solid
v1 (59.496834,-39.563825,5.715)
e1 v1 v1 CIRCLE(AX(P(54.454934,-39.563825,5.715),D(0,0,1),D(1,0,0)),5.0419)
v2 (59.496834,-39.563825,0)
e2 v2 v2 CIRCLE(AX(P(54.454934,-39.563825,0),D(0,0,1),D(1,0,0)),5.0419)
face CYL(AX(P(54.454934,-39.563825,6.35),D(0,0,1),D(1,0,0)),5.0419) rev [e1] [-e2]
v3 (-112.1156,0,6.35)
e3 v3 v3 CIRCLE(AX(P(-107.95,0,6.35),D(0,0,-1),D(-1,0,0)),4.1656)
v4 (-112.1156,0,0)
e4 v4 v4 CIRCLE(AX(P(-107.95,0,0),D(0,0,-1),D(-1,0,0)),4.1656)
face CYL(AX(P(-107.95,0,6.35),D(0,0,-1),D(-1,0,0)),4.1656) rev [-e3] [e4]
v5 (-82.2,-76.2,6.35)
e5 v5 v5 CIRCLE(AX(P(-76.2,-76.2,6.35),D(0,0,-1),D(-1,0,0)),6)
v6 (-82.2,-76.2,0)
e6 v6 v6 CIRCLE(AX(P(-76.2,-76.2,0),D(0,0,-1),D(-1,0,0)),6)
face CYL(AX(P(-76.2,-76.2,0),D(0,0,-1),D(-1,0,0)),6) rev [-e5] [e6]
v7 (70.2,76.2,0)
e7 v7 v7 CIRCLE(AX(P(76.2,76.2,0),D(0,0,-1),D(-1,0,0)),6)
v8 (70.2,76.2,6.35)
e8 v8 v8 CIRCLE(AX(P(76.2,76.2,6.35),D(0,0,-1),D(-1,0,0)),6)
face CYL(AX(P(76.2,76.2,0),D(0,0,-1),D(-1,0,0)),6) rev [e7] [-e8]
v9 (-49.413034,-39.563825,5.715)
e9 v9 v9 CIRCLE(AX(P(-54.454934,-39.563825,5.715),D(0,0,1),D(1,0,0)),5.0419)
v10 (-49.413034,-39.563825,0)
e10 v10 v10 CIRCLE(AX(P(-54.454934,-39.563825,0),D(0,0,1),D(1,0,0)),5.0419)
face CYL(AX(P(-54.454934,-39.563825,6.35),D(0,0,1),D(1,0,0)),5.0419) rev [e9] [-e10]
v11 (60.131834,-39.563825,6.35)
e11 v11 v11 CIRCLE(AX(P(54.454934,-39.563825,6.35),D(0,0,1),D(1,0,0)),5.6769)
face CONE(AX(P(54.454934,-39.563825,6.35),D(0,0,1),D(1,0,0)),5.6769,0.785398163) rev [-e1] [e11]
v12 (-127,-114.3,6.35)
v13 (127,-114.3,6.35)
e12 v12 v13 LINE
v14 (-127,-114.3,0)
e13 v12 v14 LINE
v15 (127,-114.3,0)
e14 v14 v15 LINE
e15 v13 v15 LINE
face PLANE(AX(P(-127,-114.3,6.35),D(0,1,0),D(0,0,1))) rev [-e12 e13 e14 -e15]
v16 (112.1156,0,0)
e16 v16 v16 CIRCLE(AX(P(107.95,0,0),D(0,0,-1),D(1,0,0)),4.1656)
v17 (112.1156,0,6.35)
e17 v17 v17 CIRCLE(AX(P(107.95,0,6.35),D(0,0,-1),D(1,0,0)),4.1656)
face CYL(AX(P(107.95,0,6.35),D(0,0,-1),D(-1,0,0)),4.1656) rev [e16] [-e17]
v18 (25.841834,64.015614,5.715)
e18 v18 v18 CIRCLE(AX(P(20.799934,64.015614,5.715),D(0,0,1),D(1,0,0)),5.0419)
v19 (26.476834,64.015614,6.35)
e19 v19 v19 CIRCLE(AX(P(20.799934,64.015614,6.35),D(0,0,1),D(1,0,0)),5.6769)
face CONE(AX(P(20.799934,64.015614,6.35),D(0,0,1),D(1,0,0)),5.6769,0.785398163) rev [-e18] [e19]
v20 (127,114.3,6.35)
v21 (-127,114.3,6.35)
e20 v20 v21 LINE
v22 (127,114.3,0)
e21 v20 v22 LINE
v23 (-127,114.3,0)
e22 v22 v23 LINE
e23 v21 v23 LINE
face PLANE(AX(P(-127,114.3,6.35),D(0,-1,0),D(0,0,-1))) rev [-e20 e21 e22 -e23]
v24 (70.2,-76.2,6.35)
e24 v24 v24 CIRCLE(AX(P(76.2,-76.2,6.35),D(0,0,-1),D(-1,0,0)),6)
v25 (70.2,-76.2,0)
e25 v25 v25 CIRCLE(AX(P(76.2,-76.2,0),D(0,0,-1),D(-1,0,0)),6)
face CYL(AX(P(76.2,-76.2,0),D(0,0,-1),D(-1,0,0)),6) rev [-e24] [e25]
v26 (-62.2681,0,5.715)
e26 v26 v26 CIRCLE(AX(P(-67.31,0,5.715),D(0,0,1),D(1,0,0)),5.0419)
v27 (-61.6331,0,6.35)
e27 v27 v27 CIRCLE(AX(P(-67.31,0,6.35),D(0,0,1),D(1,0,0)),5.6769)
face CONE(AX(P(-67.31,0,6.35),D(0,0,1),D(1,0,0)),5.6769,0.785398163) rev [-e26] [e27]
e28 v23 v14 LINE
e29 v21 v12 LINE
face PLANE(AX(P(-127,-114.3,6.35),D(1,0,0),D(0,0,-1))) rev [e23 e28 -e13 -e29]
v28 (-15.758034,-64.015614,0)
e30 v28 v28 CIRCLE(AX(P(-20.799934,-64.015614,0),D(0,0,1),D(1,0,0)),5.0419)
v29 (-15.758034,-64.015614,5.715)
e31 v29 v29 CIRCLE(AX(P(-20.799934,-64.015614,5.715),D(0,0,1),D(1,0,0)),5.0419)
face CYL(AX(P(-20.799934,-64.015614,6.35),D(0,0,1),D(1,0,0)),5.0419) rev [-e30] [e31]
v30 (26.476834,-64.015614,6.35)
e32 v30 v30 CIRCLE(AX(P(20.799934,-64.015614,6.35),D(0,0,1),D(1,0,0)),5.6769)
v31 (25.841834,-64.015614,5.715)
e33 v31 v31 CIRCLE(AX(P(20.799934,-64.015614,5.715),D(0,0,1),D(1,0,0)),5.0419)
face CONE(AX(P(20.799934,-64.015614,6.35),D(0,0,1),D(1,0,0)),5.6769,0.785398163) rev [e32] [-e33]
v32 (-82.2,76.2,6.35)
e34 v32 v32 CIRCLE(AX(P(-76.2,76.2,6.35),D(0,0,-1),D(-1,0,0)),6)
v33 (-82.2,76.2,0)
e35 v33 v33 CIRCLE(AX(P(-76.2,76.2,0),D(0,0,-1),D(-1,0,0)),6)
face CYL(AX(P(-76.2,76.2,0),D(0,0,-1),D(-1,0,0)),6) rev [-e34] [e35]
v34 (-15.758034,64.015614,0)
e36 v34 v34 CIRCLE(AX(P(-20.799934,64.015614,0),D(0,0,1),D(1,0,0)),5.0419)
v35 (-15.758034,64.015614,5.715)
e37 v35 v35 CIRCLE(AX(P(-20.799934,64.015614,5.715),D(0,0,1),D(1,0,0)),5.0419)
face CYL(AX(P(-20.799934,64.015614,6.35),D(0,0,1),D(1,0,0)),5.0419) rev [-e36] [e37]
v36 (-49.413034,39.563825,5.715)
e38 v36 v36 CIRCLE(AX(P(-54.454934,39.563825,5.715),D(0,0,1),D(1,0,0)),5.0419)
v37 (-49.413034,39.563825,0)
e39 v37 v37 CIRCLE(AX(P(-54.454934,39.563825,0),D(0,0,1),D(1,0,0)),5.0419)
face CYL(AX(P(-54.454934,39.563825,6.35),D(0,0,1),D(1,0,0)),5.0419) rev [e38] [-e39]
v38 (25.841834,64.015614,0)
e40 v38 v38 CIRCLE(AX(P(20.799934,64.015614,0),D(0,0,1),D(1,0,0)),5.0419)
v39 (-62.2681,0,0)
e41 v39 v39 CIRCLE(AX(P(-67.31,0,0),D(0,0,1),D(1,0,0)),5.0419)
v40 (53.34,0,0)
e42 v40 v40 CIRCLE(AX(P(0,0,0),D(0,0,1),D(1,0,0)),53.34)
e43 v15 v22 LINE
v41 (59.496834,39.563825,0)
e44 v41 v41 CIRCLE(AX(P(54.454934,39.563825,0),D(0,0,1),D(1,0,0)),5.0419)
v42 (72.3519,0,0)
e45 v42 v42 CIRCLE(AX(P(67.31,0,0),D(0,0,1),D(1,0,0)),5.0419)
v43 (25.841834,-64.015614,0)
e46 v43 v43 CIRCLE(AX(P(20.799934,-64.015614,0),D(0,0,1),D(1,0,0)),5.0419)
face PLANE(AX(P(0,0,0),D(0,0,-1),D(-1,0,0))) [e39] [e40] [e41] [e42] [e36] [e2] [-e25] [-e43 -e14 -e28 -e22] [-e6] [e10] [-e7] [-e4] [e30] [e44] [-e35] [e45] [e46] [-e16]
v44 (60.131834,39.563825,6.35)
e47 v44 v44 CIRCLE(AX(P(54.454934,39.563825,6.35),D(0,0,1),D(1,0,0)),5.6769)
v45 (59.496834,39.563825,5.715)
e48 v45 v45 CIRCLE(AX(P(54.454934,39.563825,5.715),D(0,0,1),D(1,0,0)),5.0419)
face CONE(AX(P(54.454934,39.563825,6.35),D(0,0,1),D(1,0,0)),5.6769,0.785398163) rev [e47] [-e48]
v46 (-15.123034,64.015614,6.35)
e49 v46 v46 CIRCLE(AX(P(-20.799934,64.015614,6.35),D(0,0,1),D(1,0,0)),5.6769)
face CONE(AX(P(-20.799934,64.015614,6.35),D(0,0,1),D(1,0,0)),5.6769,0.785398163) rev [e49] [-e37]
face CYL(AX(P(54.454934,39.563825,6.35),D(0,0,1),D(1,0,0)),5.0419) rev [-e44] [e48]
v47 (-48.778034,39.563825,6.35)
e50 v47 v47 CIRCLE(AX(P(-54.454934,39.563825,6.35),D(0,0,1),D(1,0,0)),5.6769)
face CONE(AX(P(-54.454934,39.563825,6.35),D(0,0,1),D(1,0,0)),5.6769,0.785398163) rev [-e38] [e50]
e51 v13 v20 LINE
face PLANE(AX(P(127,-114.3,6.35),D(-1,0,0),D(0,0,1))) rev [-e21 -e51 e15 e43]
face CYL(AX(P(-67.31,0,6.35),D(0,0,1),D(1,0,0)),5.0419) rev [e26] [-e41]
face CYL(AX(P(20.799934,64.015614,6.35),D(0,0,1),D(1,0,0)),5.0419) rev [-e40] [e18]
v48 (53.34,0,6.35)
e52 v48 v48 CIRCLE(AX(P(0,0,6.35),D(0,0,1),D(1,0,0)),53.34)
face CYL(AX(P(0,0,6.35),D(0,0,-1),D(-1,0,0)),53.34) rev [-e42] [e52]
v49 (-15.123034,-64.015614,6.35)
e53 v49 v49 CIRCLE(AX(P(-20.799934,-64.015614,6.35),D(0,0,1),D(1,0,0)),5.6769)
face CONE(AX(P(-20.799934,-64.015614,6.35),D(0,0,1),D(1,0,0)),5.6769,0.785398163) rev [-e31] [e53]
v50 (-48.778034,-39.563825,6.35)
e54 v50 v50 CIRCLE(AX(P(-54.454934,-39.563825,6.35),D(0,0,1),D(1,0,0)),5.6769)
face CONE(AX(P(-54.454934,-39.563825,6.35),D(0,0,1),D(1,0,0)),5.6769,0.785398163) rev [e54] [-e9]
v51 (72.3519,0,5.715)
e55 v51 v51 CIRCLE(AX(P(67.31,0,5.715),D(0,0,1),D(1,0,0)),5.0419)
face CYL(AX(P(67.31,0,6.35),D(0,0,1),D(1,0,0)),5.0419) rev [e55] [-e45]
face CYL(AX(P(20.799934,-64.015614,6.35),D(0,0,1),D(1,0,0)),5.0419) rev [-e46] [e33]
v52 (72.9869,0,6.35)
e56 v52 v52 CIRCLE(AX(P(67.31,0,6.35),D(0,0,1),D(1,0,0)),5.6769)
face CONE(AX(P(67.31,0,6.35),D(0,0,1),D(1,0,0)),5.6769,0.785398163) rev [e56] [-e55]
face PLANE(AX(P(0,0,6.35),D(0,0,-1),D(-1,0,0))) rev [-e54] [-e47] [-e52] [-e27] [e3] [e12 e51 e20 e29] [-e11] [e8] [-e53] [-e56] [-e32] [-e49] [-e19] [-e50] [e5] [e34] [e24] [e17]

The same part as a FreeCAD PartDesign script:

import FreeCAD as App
import Part
import Sketcher

V = App.Vector
Q = App.Units.Quantity


def add_polygon(sketch, points):
    """Adds a closed chain of lines whose ends are joined by coincident constraints."""
    first, n = sketch.GeometryCount, len(points)
    for a, b in zip(points, points[1:] + points[:1]):
        sketch.addGeometry(Part.LineSegment(App.Vector(*a, 0), App.Vector(*b, 0)), False)
    for i in range(n):
        sketch.addConstraint(Sketcher.Constraint("Coincident", first + i, 2, first + (i + 1) % n, 1))

doc = App.newDocument("Part")
body = doc.addObject("PartDesign::Body", "Body")

# Sketch on XY plane
sketch1 = body.newObject("Sketcher::SketchObject", "Sketch")
sketch1.AttachmentSupport = (doc.getObject("XY_Plane"), [""])
sketch1.MapMode = "FlatFace"
add_polygon(sketch1, [(-127, 114), (-127, -114), (127, -114), (127, 114)])  # lines 0-3
sketch1.addGeometry(Part.Circle(V(0, 0, 0), V(0, 0, 1), 53), False)  # 4
sketch1.addConstraint(Sketcher.Constraint("Vertical", 0))
sketch1.addConstraint(Sketcher.Constraint("Horizontal", 1))
sketch1.addConstraint(Sketcher.Constraint("Vertical", 2))
sketch1.addConstraint(Sketcher.Constraint("Horizontal", 3))
sketch1.addConstraint(Sketcher.Constraint("Coincident", 4, 3, -1, 1))
sketch1.addConstraint(Sketcher.Constraint("Symmetric", 0, 2, 2, 2, -1, 1))
sketch1.addConstraint(Sketcher.Constraint("Diameter", 4, Q("4.2 in")))
sketch1.addConstraint(Sketcher.Constraint("DistanceX", 1, 1, 1, 2, Q("10 in")))
sketch1.addConstraint(Sketcher.Constraint("DistanceY", 0, 2, 0, 1, Q("9 in")))
pad1 = body.newObject("PartDesign::Pad", "Pad")
pad1.Profile = sketch1
pad1.Length = Q("0.25 in")

# Sketch on XY plane
sketch2 = body.newObject("Sketcher::SketchObject", "Sketch001")
sketch2.AttachmentSupport = (doc.getObject("XY_Plane"), [""])
sketch2.MapMode = "FlatFace"
sketch2.AttachmentOffset = App.Placement(V(0, 0, 0.25 * 25.4), App.Rotation())
sketch2.addGeometry(Part.Circle(V(-54, -40, 0), V(0, 0, 1), 5), False)
sketch2.addGeometry(Part.Circle(V(-67, 0, 0), V(0, 0, 1), 5), False)
sketch2.addGeometry(Part.Circle(V(-54, 40, 0), V(0, 0, 1), 5), False)
sketch2.addGeometry(Part.Circle(V(-21, 64, 0), V(0, 0, 1), 5), False)
sketch2.addGeometry(Part.Circle(V(21, 64, 0), V(0, 0, 1), 5), False)
sketch2.addGeometry(Part.Circle(V(54, 40, 0), V(0, 0, 1), 5), False)
sketch2.addGeometry(Part.Circle(V(67, 0, 0), V(0, 0, 1), 5), False)
sketch2.addGeometry(Part.Circle(V(54, -40, 0), V(0, 0, 1), 5), False)
sketch2.addGeometry(Part.Circle(V(21, -64, 0), V(0, 0, 1), 5), False)
sketch2.addGeometry(Part.Circle(V(-21, -64, 0), V(0, 0, 1), 5), False)
sketch2.addConstraint(Sketcher.Constraint("Equal", 0, 1))
sketch2.addConstraint(Sketcher.Constraint("Equal", 1, 2))
sketch2.addConstraint(Sketcher.Constraint("Equal", 2, 3))
sketch2.addConstraint(Sketcher.Constraint("Equal", 3, 4))
sketch2.addConstraint(Sketcher.Constraint("Equal", 4, 5))
sketch2.addConstraint(Sketcher.Constraint("Equal", 5, 6))
sketch2.addConstraint(Sketcher.Constraint("Equal", 6, 7))
sketch2.addConstraint(Sketcher.Constraint("Equal", 7, 8))
sketch2.addConstraint(Sketcher.Constraint("Equal", 8, 9))
sketch2.addConstraint(Sketcher.Constraint("Symmetric", 0, 3, 5, 3, -1, 1))
sketch2.addConstraint(Sketcher.Constraint("Symmetric", 1, 3, 6, 3, -1, 1))
sketch2.addConstraint(Sketcher.Constraint("Symmetric", 2, 3, 7, 3, -1, 1))
sketch2.addConstraint(Sketcher.Constraint("Symmetric", 3, 3, 8, 3, -1, 1))
sketch2.addConstraint(Sketcher.Constraint("Symmetric", 4, 3, 9, 3, -1, 1))
sketch2.addConstraint(Sketcher.Constraint("Symmetric", 3, 3, 4, 3, -2))
sketch2.addConstraint(Sketcher.Constraint("Symmetric", 2, 3, 5, 3, -2))
sketch2.addConstraint(Sketcher.Constraint("PointOnObject", 1, 3, -1))
sketch2.addConstraint(Sketcher.Constraint("Diameter", 0, Q("0.397 in")))
sketch2.addConstraint(Sketcher.Constraint("DistanceX", 1, 3, -1, 1, Q("2.65 in")))
sketch2.addConstraint(Sketcher.Constraint("DistanceX", 2, 3, 3, 3, Q("1.325 in")))
sketch2.addConstraint(Sketcher.Constraint("DistanceY", 0, 3, 2, 3, Q("79.127651 mm")))
sketch2.addConstraint(Sketcher.Constraint("DistanceY", 2, 3, 3, 3, Q("24.451789 mm")))
sketch2.addConstraint(Sketcher.Constraint("DistanceX", 0, 3, -1, 1, Q("54.454934 mm")))
doc.recompute()
hole = body.newObject("PartDesign::Hole", "Hole")
hole.Profile = sketch2
hole.ThreadType = "None"
hole.Diameter = Q("0.397 in")
hole.DepthType = "ThroughAll"
hole.HoleCutType = "Countersink"
hole.HoleCutDiameter = Q("0.447 in")
hole.HoleCutCountersinkAngle = 90

# Sketch on XY plane
sketch3 = body.newObject("Sketcher::SketchObject", "Sketch002")
sketch3.AttachmentSupport = (doc.getObject("XY_Plane"), [""])
sketch3.MapMode = "FlatFace"
sketch3.addGeometry(Part.Circle(V(-76, 76, 0), V(0, 0, 1), 6), False)
sketch3.addGeometry(Part.Circle(V(-76, -76, 0), V(0, 0, 1), 6), False)
sketch3.addGeometry(Part.Circle(V(76, -76, 0), V(0, 0, 1), 6), False)
sketch3.addGeometry(Part.Circle(V(76, 76, 0), V(0, 0, 1), 6), False)
sketch3.addConstraint(Sketcher.Constraint("Equal", 0, 1))
sketch3.addConstraint(Sketcher.Constraint("Equal", 1, 2))
sketch3.addConstraint(Sketcher.Constraint("Equal", 2, 3))
sketch3.addConstraint(Sketcher.Constraint("Symmetric", 0, 3, 2, 3, -1, 1))
sketch3.addConstraint(Sketcher.Constraint("Symmetric", 1, 3, 3, 3, -1, 1))
sketch3.addConstraint(Sketcher.Constraint("Symmetric", 1, 3, 2, 3, -2))
sketch3.addConstraint(Sketcher.Constraint("DistanceX", 0, 3, -1, 1, Q("3 in")))
sketch3.addConstraint(Sketcher.Constraint("DistanceY", -1, 1, 0, 3, Q("3 in")))
sketch3.addConstraint(Sketcher.Constraint("Diameter", 0, Q("12 mm")))
doc.recompute()
hole2 = body.newObject("PartDesign::Hole", "Hole001")
hole2.Profile = sketch3
hole2.ThreadType = "None"
hole2.Diameter = 12
hole2.DepthType = "ThroughAll"
hole2.Reversed = True

# Sketch on XY plane
sketch4 = body.newObject("Sketcher::SketchObject", "Sketch003")
sketch4.AttachmentSupport = (doc.getObject("XY_Plane"), [""])
sketch4.MapMode = "FlatFace"
sketch4.addGeometry(Part.Circle(V(-108, 0, 0), V(0, 0, 1), 4.2), False)
sketch4.addGeometry(Part.Circle(V(108, 0, 0), V(0, 0, 1), 4.2), False)
sketch4.addConstraint(Sketcher.Constraint("Equal", 0, 1))
sketch4.addConstraint(Sketcher.Constraint("Symmetric", 0, 3, 1, 3, -1, 1))
sketch4.addConstraint(Sketcher.Constraint("PointOnObject", 0, 3, -1))
sketch4.addConstraint(Sketcher.Constraint("Diameter", 0, Q("0.328 in")))
sketch4.addConstraint(Sketcher.Constraint("DistanceX", 0, 3, 1, 3, Q("8.5 in")))
pocket1 = body.newObject("PartDesign::Pocket", "Pocket")
pocket1.Profile = sketch4
pocket1.Type = "ThroughAll"
pocket1.Reversed = True

doc.recompute()
